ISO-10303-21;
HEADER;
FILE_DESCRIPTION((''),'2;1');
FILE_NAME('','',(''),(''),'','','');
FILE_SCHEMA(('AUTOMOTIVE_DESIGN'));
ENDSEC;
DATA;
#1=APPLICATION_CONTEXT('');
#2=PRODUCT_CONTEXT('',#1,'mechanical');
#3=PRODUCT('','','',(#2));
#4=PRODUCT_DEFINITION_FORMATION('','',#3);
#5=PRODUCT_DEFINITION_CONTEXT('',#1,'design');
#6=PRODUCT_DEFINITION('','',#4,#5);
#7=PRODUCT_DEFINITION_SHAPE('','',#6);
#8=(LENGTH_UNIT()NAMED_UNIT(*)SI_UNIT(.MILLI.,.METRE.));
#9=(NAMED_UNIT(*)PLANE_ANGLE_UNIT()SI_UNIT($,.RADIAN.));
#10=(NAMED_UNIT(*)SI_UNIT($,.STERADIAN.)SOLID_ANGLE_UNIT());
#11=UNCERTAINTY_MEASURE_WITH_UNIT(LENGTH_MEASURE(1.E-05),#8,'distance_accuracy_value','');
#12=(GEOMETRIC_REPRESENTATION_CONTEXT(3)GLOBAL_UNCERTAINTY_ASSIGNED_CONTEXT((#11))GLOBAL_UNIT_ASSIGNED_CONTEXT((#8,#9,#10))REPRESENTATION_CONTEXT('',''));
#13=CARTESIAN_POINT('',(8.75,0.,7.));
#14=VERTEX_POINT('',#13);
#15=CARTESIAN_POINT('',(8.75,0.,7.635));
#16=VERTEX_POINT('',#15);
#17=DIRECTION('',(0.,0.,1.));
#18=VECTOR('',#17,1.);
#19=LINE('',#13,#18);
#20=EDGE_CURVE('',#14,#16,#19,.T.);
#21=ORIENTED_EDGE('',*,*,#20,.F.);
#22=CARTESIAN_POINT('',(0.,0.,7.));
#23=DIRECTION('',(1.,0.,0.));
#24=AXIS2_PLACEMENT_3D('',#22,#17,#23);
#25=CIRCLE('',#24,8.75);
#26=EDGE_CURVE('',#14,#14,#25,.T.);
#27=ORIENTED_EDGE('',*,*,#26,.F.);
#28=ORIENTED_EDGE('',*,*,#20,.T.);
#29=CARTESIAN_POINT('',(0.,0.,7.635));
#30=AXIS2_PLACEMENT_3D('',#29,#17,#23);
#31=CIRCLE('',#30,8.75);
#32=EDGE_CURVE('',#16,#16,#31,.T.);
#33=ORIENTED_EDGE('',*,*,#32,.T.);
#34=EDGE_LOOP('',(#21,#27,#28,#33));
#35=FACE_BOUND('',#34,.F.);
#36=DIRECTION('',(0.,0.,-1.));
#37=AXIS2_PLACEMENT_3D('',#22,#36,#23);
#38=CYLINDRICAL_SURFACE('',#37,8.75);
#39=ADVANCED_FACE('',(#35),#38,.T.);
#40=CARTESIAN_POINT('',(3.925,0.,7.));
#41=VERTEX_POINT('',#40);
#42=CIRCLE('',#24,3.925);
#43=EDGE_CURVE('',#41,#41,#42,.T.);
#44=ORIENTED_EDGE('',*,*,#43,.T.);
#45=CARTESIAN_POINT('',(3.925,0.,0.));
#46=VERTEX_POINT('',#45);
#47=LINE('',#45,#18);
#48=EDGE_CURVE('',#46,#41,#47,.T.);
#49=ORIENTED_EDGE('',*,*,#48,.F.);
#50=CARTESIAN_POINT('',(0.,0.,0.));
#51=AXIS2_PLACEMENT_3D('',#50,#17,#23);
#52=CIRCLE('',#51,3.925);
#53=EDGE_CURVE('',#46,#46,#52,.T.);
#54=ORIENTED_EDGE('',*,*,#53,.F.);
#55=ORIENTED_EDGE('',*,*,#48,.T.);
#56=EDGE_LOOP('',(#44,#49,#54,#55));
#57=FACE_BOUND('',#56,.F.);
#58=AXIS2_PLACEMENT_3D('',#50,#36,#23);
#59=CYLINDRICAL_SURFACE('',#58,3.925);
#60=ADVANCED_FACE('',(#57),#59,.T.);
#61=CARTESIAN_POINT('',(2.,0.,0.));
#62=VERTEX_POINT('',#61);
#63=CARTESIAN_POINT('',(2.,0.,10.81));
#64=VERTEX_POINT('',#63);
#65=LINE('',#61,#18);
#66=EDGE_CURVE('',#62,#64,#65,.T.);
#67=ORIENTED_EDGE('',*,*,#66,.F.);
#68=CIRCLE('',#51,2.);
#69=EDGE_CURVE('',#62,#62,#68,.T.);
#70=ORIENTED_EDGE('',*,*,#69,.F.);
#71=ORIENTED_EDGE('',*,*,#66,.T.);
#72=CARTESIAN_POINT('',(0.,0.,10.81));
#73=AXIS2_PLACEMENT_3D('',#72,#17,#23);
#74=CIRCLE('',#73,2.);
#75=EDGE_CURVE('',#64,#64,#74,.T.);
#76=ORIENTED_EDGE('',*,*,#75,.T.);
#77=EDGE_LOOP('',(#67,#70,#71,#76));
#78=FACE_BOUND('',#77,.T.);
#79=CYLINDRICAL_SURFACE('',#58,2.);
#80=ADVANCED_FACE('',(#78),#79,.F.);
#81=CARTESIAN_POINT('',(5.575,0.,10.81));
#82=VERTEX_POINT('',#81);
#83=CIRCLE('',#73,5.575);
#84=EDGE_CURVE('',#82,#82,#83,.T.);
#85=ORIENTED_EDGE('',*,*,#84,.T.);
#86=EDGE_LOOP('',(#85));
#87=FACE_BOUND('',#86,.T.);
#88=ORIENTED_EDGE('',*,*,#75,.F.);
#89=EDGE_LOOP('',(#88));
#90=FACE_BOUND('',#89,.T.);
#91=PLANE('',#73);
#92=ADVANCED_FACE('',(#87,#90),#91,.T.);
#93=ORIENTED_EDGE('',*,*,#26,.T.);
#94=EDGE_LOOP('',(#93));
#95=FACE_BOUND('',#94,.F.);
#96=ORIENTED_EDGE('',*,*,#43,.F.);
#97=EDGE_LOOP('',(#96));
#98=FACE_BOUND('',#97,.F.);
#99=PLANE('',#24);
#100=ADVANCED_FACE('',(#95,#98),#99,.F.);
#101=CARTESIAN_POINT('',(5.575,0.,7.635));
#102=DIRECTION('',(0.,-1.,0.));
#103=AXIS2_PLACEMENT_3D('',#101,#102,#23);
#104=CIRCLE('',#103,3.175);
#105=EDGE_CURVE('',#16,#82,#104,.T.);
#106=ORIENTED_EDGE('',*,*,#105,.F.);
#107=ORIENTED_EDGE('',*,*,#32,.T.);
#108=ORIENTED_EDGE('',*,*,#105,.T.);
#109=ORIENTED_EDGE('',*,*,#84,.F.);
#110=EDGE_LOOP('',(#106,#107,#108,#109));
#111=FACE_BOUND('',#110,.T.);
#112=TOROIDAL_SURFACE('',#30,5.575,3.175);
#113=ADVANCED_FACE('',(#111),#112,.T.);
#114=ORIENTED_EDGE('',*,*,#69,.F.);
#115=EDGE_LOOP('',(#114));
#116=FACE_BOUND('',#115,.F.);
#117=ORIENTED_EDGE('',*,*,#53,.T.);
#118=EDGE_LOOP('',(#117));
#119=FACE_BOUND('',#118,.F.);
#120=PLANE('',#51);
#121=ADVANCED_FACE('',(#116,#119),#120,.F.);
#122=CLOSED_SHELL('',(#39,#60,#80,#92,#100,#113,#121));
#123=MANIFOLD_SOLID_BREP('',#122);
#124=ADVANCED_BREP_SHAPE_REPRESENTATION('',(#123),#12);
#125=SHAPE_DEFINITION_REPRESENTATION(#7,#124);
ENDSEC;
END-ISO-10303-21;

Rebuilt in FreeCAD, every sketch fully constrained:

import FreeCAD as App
import Part
import Sketcher
from FreeCAD import Vector
Q = App.Units.Quantity


def edges_at(feature, points):
    """Names of the edges that pass closest to the given points."""
    edges = feature.Shape.Edges
    near = lambda p: min(range(len(edges)), key=lambda i: edges[i].distToShape(Part.Vertex(*p))[0])
    return sorted({f"Edge{near(p) + 1}" for p in points})

doc = App.newDocument("Part")
body = doc.addObject("PartDesign::Body", "Body")

sketch1 = body.newObject("Sketcher::SketchObject", "Sketch")
sketch1.AttachmentSupport = (doc.getObject("XY_Plane"), [""])
sketch1.MapMode = "FlatFace"
sketch1.addGeometry(Part.Circle(Vector(0, 0, 0), Vector(0, 0, 1), 3.9), False)
sketch1.addGeometry(Part.Circle(Vector(0, 0, 0), Vector(0, 0, 1), 2), False)
sketch1.addConstraint(Sketcher.Constraint("Coincident", 0, 3, -1, 1))
sketch1.addConstraint(Sketcher.Constraint("Coincident", 1, 3, -1, 1))
sketch1.addConstraint(Sketcher.Constraint("Diameter", 1, Q("4 mm")))
sketch1.addConstraint(Sketcher.Constraint("Diameter", 0, Q("7.85 mm")))
pad1 = body.newObject("PartDesign::Pad", "Pad")
pad1.Profile = sketch1
pad1.Length = 7

sketch2 = body.newObject("Sketcher::SketchObject", "Sketch001")
sketch2.AttachmentSupport = (doc.getObject("XY_Plane"), [""])
sketch2.MapMode = "FlatFace"
sketch2.AttachmentOffset = App.Placement(Vector(0, 0, 7), App.Rotation())
sketch2.addGeometry(Part.Circle(Vector(0, 0, 0), Vector(0, 0, 1), 8.8), False)
sketch2.addGeometry(Part.Circle(Vector(0, 0, 0), Vector(0, 0, 1), 2), False)
sketch2.addConstraint(Sketcher.Constraint("Coincident", 0, 3, -1, 1))
sketch2.addConstraint(Sketcher.Constraint("Coincident", 1, 3, -1, 1))
sketch2.addConstraint(Sketcher.Constraint("Diameter", 0, Q("17.5 mm")))
sketch2.addConstraint(Sketcher.Constraint("Diameter", 1, Q("4 mm")))
pad2 = body.newObject("PartDesign::Pad", "Pad001")
pad2.Profile = sketch2
pad2.Length = 3.81
doc.recompute()

fillet = body.newObject("PartDesign::Fillet", "Fillet")
fillet.Base = (pad2, edges_at(pad2, [(-8.75, 0, 10.81)]))
fillet.Radius = 3.175

doc.recompute()
